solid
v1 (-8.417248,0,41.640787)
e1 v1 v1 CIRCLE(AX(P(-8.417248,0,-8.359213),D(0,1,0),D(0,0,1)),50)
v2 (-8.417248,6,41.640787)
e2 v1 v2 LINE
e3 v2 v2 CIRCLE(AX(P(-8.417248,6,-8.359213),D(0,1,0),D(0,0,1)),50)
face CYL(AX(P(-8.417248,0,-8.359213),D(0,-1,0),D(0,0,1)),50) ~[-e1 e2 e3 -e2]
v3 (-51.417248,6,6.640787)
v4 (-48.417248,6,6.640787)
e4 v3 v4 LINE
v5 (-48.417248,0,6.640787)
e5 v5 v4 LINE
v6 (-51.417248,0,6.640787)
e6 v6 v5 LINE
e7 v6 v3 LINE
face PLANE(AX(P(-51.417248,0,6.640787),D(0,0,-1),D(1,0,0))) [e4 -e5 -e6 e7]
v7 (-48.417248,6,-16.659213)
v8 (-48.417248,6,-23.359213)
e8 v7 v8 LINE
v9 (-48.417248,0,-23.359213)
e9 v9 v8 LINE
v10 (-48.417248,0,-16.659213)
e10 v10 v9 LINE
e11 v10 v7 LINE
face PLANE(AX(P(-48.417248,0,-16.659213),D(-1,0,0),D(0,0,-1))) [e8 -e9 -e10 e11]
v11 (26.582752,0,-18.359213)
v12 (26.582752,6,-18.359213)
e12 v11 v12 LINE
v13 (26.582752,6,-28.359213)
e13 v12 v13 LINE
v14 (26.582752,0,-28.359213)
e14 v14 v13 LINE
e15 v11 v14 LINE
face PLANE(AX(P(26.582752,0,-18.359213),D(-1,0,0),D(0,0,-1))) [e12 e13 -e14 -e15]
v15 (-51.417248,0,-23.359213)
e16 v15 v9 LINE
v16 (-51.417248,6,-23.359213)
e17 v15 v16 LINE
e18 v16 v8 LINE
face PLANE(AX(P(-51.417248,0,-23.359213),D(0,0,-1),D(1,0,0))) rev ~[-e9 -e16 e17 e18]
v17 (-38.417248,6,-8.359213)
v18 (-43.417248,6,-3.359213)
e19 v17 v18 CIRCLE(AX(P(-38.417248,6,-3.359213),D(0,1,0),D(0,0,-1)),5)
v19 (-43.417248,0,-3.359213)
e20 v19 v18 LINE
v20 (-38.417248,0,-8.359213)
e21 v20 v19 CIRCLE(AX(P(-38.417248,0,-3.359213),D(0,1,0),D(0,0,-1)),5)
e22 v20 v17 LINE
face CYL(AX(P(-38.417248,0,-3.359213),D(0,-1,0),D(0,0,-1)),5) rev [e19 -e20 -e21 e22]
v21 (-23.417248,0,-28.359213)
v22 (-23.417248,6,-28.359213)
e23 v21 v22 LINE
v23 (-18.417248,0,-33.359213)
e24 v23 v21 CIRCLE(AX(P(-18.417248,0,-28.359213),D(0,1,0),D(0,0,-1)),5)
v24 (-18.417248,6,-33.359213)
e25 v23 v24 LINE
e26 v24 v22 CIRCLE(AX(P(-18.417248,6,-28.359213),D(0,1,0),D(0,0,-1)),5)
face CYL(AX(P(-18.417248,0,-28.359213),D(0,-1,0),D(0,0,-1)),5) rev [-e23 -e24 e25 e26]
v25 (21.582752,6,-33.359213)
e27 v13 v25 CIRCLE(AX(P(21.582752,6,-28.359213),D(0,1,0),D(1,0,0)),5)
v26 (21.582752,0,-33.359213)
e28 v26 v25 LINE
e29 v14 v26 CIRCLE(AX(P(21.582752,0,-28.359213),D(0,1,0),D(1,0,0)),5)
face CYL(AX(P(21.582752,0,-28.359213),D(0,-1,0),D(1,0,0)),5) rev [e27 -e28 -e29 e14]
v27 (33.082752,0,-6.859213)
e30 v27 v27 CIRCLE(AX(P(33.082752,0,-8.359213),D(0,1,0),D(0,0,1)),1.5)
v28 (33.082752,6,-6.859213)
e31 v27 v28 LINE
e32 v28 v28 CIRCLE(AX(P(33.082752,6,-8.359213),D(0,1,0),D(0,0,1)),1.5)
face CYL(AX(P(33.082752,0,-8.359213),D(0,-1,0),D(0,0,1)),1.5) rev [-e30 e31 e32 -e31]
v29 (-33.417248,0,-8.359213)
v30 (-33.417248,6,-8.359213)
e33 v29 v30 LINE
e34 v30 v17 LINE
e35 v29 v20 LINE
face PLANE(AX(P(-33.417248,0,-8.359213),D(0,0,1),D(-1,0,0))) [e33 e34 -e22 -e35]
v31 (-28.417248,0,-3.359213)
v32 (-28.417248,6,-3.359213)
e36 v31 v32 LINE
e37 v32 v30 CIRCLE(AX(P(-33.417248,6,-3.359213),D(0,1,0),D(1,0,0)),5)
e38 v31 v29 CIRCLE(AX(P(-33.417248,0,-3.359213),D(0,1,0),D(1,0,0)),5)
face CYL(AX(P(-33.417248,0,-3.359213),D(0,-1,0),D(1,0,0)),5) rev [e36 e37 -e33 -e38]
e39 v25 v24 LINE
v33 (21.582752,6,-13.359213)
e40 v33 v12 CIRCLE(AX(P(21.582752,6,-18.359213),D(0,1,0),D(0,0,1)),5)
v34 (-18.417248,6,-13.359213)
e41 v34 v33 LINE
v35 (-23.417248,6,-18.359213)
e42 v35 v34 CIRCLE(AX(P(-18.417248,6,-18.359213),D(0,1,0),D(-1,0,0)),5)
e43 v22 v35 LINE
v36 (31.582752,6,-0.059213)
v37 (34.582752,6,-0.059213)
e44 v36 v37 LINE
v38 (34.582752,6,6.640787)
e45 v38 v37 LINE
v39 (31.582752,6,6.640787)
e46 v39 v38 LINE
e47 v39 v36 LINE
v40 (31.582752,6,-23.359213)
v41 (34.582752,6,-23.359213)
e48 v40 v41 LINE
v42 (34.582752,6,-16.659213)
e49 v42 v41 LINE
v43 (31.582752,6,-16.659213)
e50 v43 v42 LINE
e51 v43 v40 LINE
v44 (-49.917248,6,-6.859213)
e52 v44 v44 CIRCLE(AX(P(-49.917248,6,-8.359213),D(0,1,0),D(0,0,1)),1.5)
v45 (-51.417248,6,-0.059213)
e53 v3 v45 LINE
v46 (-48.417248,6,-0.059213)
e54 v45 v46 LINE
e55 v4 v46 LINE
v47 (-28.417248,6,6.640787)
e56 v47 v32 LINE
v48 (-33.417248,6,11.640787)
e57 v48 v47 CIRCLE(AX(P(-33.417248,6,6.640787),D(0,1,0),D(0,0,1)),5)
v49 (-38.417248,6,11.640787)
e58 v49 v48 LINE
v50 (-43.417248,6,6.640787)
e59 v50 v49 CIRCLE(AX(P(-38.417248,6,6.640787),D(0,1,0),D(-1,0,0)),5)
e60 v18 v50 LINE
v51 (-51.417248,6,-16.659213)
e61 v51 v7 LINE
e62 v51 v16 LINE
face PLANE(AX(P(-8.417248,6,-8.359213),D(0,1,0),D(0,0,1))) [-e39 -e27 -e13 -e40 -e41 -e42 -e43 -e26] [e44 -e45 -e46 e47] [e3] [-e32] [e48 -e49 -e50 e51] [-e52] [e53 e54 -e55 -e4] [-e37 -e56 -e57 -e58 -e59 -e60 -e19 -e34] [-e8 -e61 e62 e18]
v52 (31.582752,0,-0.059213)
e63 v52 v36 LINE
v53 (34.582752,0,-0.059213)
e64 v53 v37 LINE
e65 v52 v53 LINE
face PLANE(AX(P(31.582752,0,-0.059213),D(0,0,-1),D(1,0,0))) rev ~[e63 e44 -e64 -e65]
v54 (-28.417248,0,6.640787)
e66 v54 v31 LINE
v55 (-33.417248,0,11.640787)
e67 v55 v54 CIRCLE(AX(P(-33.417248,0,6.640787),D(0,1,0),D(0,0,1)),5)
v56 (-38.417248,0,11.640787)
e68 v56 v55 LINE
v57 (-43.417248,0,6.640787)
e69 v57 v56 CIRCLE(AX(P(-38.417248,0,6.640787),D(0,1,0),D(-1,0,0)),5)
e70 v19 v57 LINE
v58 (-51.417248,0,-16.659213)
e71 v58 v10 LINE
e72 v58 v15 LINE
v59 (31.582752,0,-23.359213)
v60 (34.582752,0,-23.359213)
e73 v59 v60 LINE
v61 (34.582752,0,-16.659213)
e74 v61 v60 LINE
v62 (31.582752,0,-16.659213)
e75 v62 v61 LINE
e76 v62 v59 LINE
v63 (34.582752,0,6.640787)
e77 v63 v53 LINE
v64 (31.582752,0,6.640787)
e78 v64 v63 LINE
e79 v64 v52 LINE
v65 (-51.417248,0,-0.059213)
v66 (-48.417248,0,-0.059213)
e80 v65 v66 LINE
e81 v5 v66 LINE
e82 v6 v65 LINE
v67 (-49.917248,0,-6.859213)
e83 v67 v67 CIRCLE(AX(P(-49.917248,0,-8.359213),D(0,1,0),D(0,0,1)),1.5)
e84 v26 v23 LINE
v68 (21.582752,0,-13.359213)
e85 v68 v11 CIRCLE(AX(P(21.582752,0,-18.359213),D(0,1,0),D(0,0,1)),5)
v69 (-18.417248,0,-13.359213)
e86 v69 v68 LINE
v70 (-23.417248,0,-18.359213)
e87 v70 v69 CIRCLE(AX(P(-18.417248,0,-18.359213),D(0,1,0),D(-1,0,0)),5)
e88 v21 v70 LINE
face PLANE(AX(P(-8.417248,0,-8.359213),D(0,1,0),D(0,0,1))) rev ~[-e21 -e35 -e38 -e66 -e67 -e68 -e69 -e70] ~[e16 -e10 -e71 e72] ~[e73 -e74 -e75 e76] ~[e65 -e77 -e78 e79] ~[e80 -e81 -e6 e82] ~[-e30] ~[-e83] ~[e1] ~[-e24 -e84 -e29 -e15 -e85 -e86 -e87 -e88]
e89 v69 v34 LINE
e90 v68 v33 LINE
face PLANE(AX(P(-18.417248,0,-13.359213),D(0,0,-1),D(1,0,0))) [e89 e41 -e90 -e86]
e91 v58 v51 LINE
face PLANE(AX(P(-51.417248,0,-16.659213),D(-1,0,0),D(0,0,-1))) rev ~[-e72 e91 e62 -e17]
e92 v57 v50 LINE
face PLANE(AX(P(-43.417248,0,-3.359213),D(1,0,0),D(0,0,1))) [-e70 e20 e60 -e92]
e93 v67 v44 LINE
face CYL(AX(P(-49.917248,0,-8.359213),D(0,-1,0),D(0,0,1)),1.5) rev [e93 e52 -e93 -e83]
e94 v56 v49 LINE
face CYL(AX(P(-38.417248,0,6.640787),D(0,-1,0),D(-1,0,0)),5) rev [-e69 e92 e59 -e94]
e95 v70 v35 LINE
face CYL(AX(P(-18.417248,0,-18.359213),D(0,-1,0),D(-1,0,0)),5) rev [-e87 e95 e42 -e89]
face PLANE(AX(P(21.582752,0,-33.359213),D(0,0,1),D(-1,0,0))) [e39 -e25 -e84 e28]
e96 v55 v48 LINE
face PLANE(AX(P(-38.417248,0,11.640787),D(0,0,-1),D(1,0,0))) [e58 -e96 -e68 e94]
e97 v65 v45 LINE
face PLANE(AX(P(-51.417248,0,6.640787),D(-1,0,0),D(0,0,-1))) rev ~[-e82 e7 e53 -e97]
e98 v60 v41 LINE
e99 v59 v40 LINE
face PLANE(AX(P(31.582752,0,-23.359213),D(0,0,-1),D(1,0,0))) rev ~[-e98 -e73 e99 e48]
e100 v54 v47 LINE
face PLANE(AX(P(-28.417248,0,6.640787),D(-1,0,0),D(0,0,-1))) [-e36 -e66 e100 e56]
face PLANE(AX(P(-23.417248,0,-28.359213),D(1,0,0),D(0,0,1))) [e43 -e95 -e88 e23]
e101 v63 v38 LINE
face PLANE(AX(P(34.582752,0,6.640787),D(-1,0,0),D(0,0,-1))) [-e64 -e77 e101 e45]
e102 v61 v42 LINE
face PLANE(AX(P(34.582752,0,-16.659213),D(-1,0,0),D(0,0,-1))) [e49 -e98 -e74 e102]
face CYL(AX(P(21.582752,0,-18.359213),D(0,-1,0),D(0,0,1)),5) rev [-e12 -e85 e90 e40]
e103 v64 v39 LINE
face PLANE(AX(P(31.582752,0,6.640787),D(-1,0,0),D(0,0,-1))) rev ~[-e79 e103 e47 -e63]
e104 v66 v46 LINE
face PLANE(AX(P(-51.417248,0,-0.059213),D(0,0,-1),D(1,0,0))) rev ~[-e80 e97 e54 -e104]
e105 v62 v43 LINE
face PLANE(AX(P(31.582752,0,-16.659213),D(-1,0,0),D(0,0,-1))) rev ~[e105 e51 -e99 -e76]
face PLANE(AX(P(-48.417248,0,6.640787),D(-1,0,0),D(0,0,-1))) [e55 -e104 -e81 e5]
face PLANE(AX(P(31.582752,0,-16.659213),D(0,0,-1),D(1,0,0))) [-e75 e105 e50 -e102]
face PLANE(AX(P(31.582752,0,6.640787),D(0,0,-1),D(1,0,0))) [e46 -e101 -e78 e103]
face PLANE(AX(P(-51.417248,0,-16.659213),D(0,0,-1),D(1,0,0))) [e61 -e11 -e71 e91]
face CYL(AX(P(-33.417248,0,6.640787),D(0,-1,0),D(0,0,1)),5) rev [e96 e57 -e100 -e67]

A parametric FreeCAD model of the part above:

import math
import FreeCAD as App
import Part
import Sketcher
Q = App.Units.Quantity

doc = App.newDocument("Part")
body = doc.addObject("PartDesign::Body", "Body")

# Sketch on XZ plane
sketch1 = body.newObject("Sketcher::SketchObject", "Sketch")
sketch1.AttachmentSupport = (doc.getObject("XZ_Plane"), [""])
sketch1.MapMode = "FlatFace"
sketch1.addGeometry(Part.Circle(App.Vector(-8.4, -8.4, 0), App.Vector(0, 0, 1), 50), False)
sketch1.addGeometry(Part.LineSegment(App.Vector(-48.4, -16.7, 0), App.Vector(-51.4, -16.7, 0)), False)
sketch1.addGeometry(Part.LineSegment(App.Vector(-51.4, -16.7, 0), App.Vector(-51.4, -23.4, 0)), False)
sketch1.addGeometry(Part.LineSegment(App.Vector(-51.4, -23.4, 0), App.Vector(-48.4, -23.4, 0)), False)
sketch1.addGeometry(Part.LineSegment(App.Vector(-48.4, -23.4, 0), App.Vector(-48.4, -16.7, 0)), False)
sketch1.addGeometry(Part.Circle(App.Vector(-49.9, -8.4, 0), App.Vector(0, 0, 1), 1.5), False)
sketch1.addGeometry(Part.LineSegment(App.Vector(-48.4, 6.6, 0), App.Vector(-51.4, 6.6, 0)), False)
sketch1.addGeometry(Part.LineSegment(App.Vector(-51.4, 6.6, 0), App.Vector(-51.4, -0.1, 0)), False)
sketch1.addGeometry(Part.LineSegment(App.Vector(-51.4, -0.1, 0), App.Vector(-48.4, -0.1, 0)), False)
sketch1.addGeometry(Part.LineSegment(App.Vector(-48.4, -0.1, 0), App.Vector(-48.4, 6.6, 0)), False)
sketch1.addGeometry(Part.LineSegment(App.Vector(-38.4, -8.4, 0), App.Vector(-33.4, -8.4, 0)), False)
sketch1.addGeometry(Part.ArcOfCircle(Part.Circle(App.Vector(-33.4, -3.4, 0), App.Vector(0, 0, 1), 5), math.radians(-90), math.radians(0)), False)
sketch1.addGeometry(Part.LineSegment(App.Vector(-28.4, -3.4, 0), App.Vector(-28.4, 6.6, 0)), False)
sketch1.addGeometry(Part.ArcOfCircle(Part.Circle(App.Vector(-33.4, 6.6, 0), App.Vector(0, 0, 1), 5), math.radians(0), math.radians(90)), False)
sketch1.addGeometry(Part.LineSegment(App.Vector(-33.4, 11.6, 0), App.Vector(-38.4, 11.6, 0)), False)
sketch1.addGeometry(Part.ArcOfCircle(Part.Circle(App.Vector(-38.4, 6.6, 0), App.Vector(0, 0, 1), 5), math.radians(90), math.radians(180)), False)
sketch1.addGeometry(Part.LineSegment(App.Vector(-43.4, 6.6, 0), App.Vector(-43.4, -3.4, 0)), False)
sketch1.addGeometry(Part.ArcOfCircle(Part.Circle(App.Vector(-38.4, -3.4, 0), App.Vector(0, 0, 1), 5), math.radians(180), math.radians(270)), False)
sketch1.addGeometry(Part.LineSegment(App.Vector(-18.4, -33.4, 0), App.Vector(21.6, -33.4, 0)), False)
sketch1.addGeometry(Part.ArcOfCircle(Part.Circle(App.Vector(21.6, -28.4, 0), App.Vector(0, 0, 1), 5), math.radians(-90), math.radians(0)), False)
sketch1.addGeometry(Part.LineSegment(App.Vector(26.6, -28.4, 0), App.Vector(26.6, -18.4, 0)), False)
sketch1.addGeometry(Part.ArcOfCircle(Part.Circle(App.Vector(21.6, -18.4, 0), App.Vector(0, 0, 1), 5), math.radians(0), math.radians(90)), False)
sketch1.addGeometry(Part.LineSegment(App.Vector(21.6, -13.4, 0), App.Vector(-18.4, -13.4, 0)), False)
sketch1.addGeometry(Part.ArcOfCircle(Part.Circle(App.Vector(-18.4, -18.4, 0), App.Vector(0, 0, 1), 5), math.radians(90), math.radians(180)), False)
sketch1.addGeometry(Part.LineSegment(App.Vector(-23.4, -18.4, 0), App.Vector(-23.4, -28.4, 0)), False)
sketch1.addGeometry(Part.ArcOfCircle(Part.Circle(App.Vector(-18.4, -28.4, 0), App.Vector(0, 0, 1), 5), math.radians(180), math.radians(270)), False)
sketch1.addGeometry(Part.LineSegment(App.Vector(34.6, -16.7, 0), App.Vector(31.6, -16.7, 0)), False)
sketch1.addGeometry(Part.LineSegment(App.Vector(31.6, -16.7, 0), App.Vector(31.6, -23.4, 0)), False)
sketch1.addGeometry(Part.LineSegment(App.Vector(31.6, -23.4, 0), App.Vector(34.6, -23.4, 0)), False)
sketch1.addGeometry(Part.LineSegment(App.Vector(34.6, -23.4, 0), App.Vector(34.6, -16.7, 0)), False)
sketch1.addGeometry(Part.Circle(App.Vector(33.1, -8.4, 0), App.Vector(0, 0, 1), 1.5), False)
sketch1.addGeometry(Part.LineSegment(App.Vector(34.6, 6.6, 0), App.Vector(31.6, 6.6, 0)), False)
sketch1.addGeometry(Part.LineSegment(App.Vector(31.6, 6.6, 0), App.Vector(31.6, -0.1, 0)), False)
sketch1.addGeometry(Part.LineSegment(App.Vector(31.6, -0.1, 0), App.Vector(34.6, -0.1, 0)), False)
sketch1.addGeometry(Part.LineSegment(App.Vector(34.6, -0.1, 0), App.Vector(34.6, 6.6, 0)), False)
sketch1.addConstraint(Sketcher.Constraint("Coincident", 1, 2, 2, 1))
sketch1.addConstraint(Sketcher.Constraint("Coincident", 2, 2, 3, 1))
sketch1.addConstraint(Sketcher.Constraint("Coincident", 3, 2, 4, 1))
sketch1.addConstraint(Sketcher.Constraint("Coincident", 4, 2, 1, 1))
sketch1.addConstraint(Sketcher.Constraint("Coincident", 6, 2, 7, 1))
sketch1.addConstraint(Sketcher.Constraint("Coincident", 7, 2, 8, 1))
sketch1.addConstraint(Sketcher.Constraint("Coincident", 8, 2, 9, 1))
sketch1.addConstraint(Sketcher.Constraint("Coincident", 9, 2, 6, 1))
sketch1.addConstraint(Sketcher.Constraint("Tangent", 10, 2, 11, 1))
sketch1.addConstraint(Sketcher.Constraint("Tangent", 11, 2, 12, 1))
sketch1.addConstraint(Sketcher.Constraint("Tangent", 12, 2, 13, 1))
sketch1.addConstraint(Sketcher.Constraint("Tangent", 13, 2, 14, 1))
sketch1.addConstraint(Sketcher.Constraint("Tangent", 14, 2, 15, 1))
sketch1.addConstraint(Sketcher.Constraint("Tangent", 15, 2, 16, 1))
sketch1.addConstraint(Sketcher.Constraint("Tangent", 16, 2, 17, 1))
sketch1.addConstraint(Sketcher.Constraint("Tangent", 17, 2, 10, 1))
sketch1.addConstraint(Sketcher.Constraint("Tangent", 18, 2, 19, 1))
sketch1.addConstraint(Sketcher.Constraint("Tangent", 19, 2, 20, 1))
sketch1.addConstraint(Sketcher.Constraint("Tangent", 20, 2, 21, 1))
sketch1.addConstraint(Sketcher.Constraint("Tangent", 21, 2, 22, 1))
sketch1.addConstraint(Sketcher.Constraint("Tangent", 22, 2, 23, 1))
sketch1.addConstraint(Sketcher.Constraint("Tangent", 23, 2, 24, 1))
sketch1.addConstraint(Sketcher.Constraint("Tangent", 24, 2, 25, 1))
sketch1.addConstraint(Sketcher.Constraint("Tangent", 25, 2, 18, 1))
sketch1.addConstraint(Sketcher.Constraint("Coincident", 26, 2, 27, 1))
sketch1.addConstraint(Sketcher.Constraint("Coincident", 27, 2, 28, 1))
sketch1.addConstraint(Sketcher.Constraint("Coincident", 28, 2, 29, 1))
sketch1.addConstraint(Sketcher.Constraint("Coincident", 29, 2, 26, 1))
sketch1.addConstraint(Sketcher.Constraint("Coincident", 31, 2, 32, 1))
sketch1.addConstraint(Sketcher.Constraint("Coincident", 32, 2, 33, 1))
sketch1.addConstraint(Sketcher.Constraint("Coincident", 33, 2, 34, 1))
sketch1.addConstraint(Sketcher.Constraint("Coincident", 34, 2, 31, 1))
sketch1.addConstraint(Sketcher.Constraint("Horizontal", 1))
sketch1.addConstraint(Sketcher.Constraint("Vertical", 2))
sketch1.addConstraint(Sketcher.Constraint("Horizontal", 3))
sketch1.addConstraint(Sketcher.Constraint("Vertical", 4))
sketch1.addConstraint(Sketcher.Constraint("Horizontal", 6))
sketch1.addConstraint(Sketcher.Constraint("Vertical", 7))
sketch1.addConstraint(Sketcher.Constraint("Horizontal", 8))
sketch1.addConstraint(Sketcher.Constraint("Vertical", 9))
sketch1.addConstraint(Sketcher.Constraint("Horizontal", 10))
sketch1.addConstraint(Sketcher.Constraint("Vertical", 12))
sketch1.addConstraint(Sketcher.Constraint("Horizontal", 14))
sketch1.addConstraint(Sketcher.Constraint("Vertical", 16))
sketch1.addConstraint(Sketcher.Constraint("Horizontal", 18))
sketch1.addConstraint(Sketcher.Constraint("Vertical", 20))
sketch1.addConstraint(Sketcher.Constraint("Horizontal", 22))
sketch1.addConstraint(Sketcher.Constraint("Vertical", 24))
sketch1.addConstraint(Sketcher.Constraint("Horizontal", 26))
sketch1.addConstraint(Sketcher.Constraint("Vertical", 27))
sketch1.addConstraint(Sketcher.Constraint("Horizontal", 28))
sketch1.addConstraint(Sketcher.Constraint("Vertical", 29))
sketch1.addConstraint(Sketcher.Constraint("Horizontal", 31))
sketch1.addConstraint(Sketcher.Constraint("Vertical", 32))
sketch1.addConstraint(Sketcher.Constraint("Horizontal", 33))
sketch1.addConstraint(Sketcher.Constraint("Vertical", 34))
sketch1.addConstraint(Sketcher.Constraint("Equal", 11, 13))
sketch1.addConstraint(Sketcher.Constraint("Equal", 13, 15))
sketch1.addConstraint(Sketcher.Constraint("Equal", 15, 17))
sketch1.addConstraint(Sketcher.Constraint("Equal", 17, 19))
sketch1.addConstraint(Sketcher.Constraint("Equal", 19, 21))
sketch1.addConstraint(Sketcher.Constraint("Equal", 21, 23))
sketch1.addConstraint(Sketcher.Constraint("Equal", 23, 25))
sketch1.addConstraint(Sketcher.Constraint("Equal", 5, 30))
sketch1.addConstraint(Sketcher.Constraint("Horizontal", 0, 3, 5, 3))
sketch1.addConstraint(Sketcher.Constraint("Horizontal", 5, 3, 30, 3))
sketch1.addConstraint(Sketcher.Constraint("Horizontal", 15, 3, 6, 2))
sketch1.addConstraint(Sketcher.Constraint("Horizontal", 30, 3, 10, 2))
sketch1.addConstraint(Sketcher.Constraint("Horizontal", 4, 2, 26, 2))
sketch1.addConstraint(Sketcher.Constraint("Horizontal", 3, 2, 27, 2))
sketch1.addConstraint(Sketcher.Constraint("Horizontal", 15, 2, 31, 2))
sketch1.addConstraint(Sketcher.Constraint("Horizontal", 8, 2, 32, 2))
sketch1.addConstraint(Sketcher.Constraint("Vertical", 2, 2, 6, 2))
sketch1.addConstraint(Sketcher.Constraint("Vertical", 4, 2, 8, 2))
sketch1.addConstraint(Sketcher.Constraint("Vertical", 27, 2, 31, 2))
sketch1.addConstraint(Sketcher.Constraint("Vertical", 29, 2, 33, 2))
sketch1.addConstraint(Sketcher.Constraint("Equal", 8, 26))
sketch1.addConstraint(Sketcher.Constraint("Equal", 4, 7))
sketch1.addConstraint(Sketcher.Constraint("Equal", 16, 20))
sketch1.addConstraint(Sketcher.Constraint("Diameter", 0, Q("100 mm")))
sketch1.addConstraint(Sketcher.Constraint("Diameter", 5, Q("3 mm")))
sketch1.addConstraint(Sketcher.Constraint("Radius", 11, Q("5 mm")))
sketch1.addConstraint(Sketcher.Constraint("DistanceX", 1, 2, 1, 1, Q("3 mm")))
sketch1.addConstraint(Sketcher.Constraint("DistanceX", 10, 1, 10, 2, Q("5 mm")))
sketch1.addConstraint(Sketcher.Constraint("DistanceX", 18, 1, 18, 2, Q("40 mm")))
sketch1.addConstraint(Sketcher.Constraint("DistanceY", 12, 1, 12, 2, Q("10 mm")))
sketch1.addConstraint(Sketcher.Constraint("DistanceY", 2, 2, 2, 1, Q("6.7 mm")))
sketch1.addConstraint(Sketcher.Constraint("DistanceX", 11, 3, 0, 3, Q("25 mm")))
sketch1.addConstraint(Sketcher.Constraint("DistanceX", 0, 3, 19, 3, Q("30 mm")))
sketch1.addConstraint(Sketcher.Constraint("DistanceY", 19, 3, 0, 3, Q("20 mm")))
sketch1.addConstraint(Sketcher.Constraint("DistanceX", 1, 2, 17, 3, Q("13 mm")))
sketch1.addConstraint(Sketcher.Constraint("DistanceY", 2, 2, 5, 3, Q("15 mm")))
sketch1.addConstraint(Sketcher.Constraint("DistanceX", 20, 2, 26, 2, Q("5 mm")))
sketch1.addConstraint(Sketcher.Constraint("DistanceX", 5, 3, 0, 3, Q("41.5 mm")))
sketch1.addConstraint(Sketcher.Constraint("DistanceX", 21, 3, 30, 3, Q("11.5 mm")))
sketch1.addConstraint(Sketcher.Constraint("DistanceX", 0, 3, -1, 1, Q("8.417248 mm")))
sketch1.addConstraint(Sketcher.Constraint("DistanceY", 0, 3, -1, 1, Q("8.359213 mm")))
pad1 = body.newObject("PartDesign::Pad", "Pad")
pad1.Profile = sketch1
pad1.Length = 6
pad1.Reversed = True

doc.recompute()
